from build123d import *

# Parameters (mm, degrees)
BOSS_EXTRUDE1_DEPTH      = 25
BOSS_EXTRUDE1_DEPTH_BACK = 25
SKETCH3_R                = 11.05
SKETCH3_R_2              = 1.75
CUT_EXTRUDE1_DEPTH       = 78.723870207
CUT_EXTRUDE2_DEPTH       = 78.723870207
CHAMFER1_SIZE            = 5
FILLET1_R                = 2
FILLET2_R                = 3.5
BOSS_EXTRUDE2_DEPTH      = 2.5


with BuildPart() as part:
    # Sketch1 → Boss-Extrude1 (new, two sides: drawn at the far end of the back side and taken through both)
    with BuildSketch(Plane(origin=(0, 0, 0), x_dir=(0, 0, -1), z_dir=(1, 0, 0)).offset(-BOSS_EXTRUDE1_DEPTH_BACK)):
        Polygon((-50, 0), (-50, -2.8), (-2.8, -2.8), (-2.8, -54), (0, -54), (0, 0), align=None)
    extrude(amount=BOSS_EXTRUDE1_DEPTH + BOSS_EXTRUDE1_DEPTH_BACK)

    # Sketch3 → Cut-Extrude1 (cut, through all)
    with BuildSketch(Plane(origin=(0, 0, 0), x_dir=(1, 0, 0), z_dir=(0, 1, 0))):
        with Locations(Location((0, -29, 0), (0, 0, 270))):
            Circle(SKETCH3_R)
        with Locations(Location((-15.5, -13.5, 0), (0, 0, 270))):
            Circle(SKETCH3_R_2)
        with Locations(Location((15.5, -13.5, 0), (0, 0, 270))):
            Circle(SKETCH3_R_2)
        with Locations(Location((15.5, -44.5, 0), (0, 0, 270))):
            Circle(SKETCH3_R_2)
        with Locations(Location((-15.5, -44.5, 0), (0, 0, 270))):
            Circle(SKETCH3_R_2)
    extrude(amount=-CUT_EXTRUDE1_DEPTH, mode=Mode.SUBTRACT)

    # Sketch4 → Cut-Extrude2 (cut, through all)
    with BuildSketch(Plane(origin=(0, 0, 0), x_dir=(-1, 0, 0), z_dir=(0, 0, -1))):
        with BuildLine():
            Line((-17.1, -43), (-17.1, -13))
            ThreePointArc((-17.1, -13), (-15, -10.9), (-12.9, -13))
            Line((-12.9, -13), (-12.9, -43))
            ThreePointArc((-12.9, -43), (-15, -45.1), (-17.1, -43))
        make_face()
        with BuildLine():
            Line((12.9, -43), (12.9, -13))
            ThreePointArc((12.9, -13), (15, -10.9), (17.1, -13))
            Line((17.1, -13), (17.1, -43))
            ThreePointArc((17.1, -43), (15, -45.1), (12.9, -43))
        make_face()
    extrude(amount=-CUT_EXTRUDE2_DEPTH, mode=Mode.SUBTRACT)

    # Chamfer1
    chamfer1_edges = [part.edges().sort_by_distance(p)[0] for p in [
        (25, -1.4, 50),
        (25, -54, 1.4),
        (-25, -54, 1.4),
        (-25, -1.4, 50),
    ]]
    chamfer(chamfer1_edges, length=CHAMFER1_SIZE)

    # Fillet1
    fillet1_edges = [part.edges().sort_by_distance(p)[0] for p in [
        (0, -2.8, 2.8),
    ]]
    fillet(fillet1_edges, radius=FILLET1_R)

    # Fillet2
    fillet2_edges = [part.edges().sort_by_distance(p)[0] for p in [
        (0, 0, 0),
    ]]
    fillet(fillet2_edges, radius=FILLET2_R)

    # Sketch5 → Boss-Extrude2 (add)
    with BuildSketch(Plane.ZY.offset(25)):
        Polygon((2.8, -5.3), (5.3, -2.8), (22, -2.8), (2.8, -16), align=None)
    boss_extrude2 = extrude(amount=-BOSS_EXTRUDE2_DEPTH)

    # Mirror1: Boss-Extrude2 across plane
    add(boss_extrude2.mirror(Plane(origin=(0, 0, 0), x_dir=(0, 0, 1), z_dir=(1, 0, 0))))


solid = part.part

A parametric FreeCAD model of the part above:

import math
import FreeCAD as App
import Part
import Sketcher

V = App.Vector
Q = App.Units.Quantity


def edges_at(feature, points):
    """Names of the edges that pass closest to the given points."""
    edges = feature.Shape.Edges
    near = lambda p: min(range(len(edges)), key=lambda i: edges[i].distToShape(Part.Vertex(*p))[0])
    return sorted({f"Edge{near(p) + 1}" for p in points})


def add_polygon(sketch, points):
    """Adds a closed chain of lines whose ends are joined by coincident constraints."""
    first, n = sketch.GeometryCount, len(points)
    for a, b in zip(points, points[1:] + points[:1]):
        sketch.addGeometry(Part.LineSegment(App.Vector(*a, 0), App.Vector(*b, 0)), False)
    for i in range(n):
        sketch.addConstraint(Sketcher.Constraint("Coincident", first + i, 2, first + (i + 1) % n, 1))

doc = App.newDocument("Part")
body = doc.addObject("PartDesign::Body", "Body")

sketch1 = doc.addObject("Sketcher::SketchObject", "Sketch")
body.addObject(sketch1)
sketch1.AttachmentSupport = (doc.YZ_Plane, [""])
sketch1.MapMode = "FlatFace"
add_polygon(sketch1, [(0, 50), (-2.8, 50), (-2.8, 2.8), (-54, 2.8), (-54, 0), (0, 0)])
sketch1.addConstraint(Sketcher.Constraint("Horizontal", 0))
sketch1.addConstraint(Sketcher.Constraint("Vertical", 1))
sketch1.addConstraint(Sketcher.Constraint("Horizontal", 2))
sketch1.addConstraint(Sketcher.Constraint("Vertical", 3))
sketch1.addConstraint(Sketcher.Constraint("Horizontal", 4))
sketch1.addConstraint(Sketcher.Constraint("Vertical", 5))
sketch1.addConstraint(Sketcher.Constraint("Coincident", 4, 2, -1, 1))
sketch1.addConstraint(Sketcher.Constraint("Equal", 0, 3))
sketch1.addConstraint(Sketcher.Constraint("DistanceX", 4, 1, 4, 2, 54.0))
sketch1.addConstraint(Sketcher.Constraint("DistanceY", 5, 1, 5, 2, 50.0))
sketch1.addConstraint(Sketcher.Constraint("DistanceX", 0, 2, 0, 1, 2.8))
pad1 = doc.addObject("PartDesign::Pad", "Pad")
body.addObject(pad1)
pad1.Profile = sketch1
pad1.Type = "TwoLengths"
pad1.Length = 25
pad1.Length2 = 25

sketch2 = doc.addObject("Sketcher::SketchObject", "Sketch001")
body.addObject(sketch2)
sketch2.AttachmentSupport = (doc.XZ_Plane, [""])
sketch2.MapMode = "FlatFace"
sketch2.addGeometry(Part.Circle(V(0, 29, 0), V(0, 0, 1), 11.1), False)
sketch2.addGeometry(Part.Circle(V(-15.5, 13.5, 0), V(0, 0, 1), 1.8), False)
sketch2.addGeometry(Part.Circle(V(15.5, 13.5, 0), V(0, 0, 1), 1.8), False)
sketch2.addGeometry(Part.Circle(V(15.5, 44.5, 0), V(0, 0, 1), 1.8), False)
sketch2.addGeometry(Part.Circle(V(-15.5, 44.5, 0), V(0, 0, 1), 1.8), False)
sketch2.addConstraint(Sketcher.Constraint("Equal", 1, 2))
sketch2.addConstraint(Sketcher.Constraint("Equal", 2, 3))
sketch2.addConstraint(Sketcher.Constraint("Equal", 3, 4))
sketch2.addConstraint(Sketcher.Constraint("Symmetric", 1, 3, 2, 3, -2))
sketch2.addConstraint(Sketcher.Constraint("Symmetric", 3, 3, 4, 3, -2))
sketch2.addConstraint(Sketcher.Constraint("PointOnObject", 0, 3, -2))
sketch2.addConstraint(Sketcher.Constraint("Vertical", 2, 3, 3, 3))
sketch2.addConstraint(Sketcher.Constraint("Diameter", 0, 22.1))
sketch2.addConstraint(Sketcher.Constraint("Diameter", 1, 3.5))
sketch2.addConstraint(Sketcher.Constraint("DistanceY", -1, 1, 0, 3, 29.0))
sketch2.addConstraint(Sketcher.Constraint("DistanceX", 1, 3, 2, 3, 31.0))
sketch2.addConstraint(Sketcher.Constraint("DistanceY", 2, 3, 3, 3, 31.0))
sketch2.addConstraint(Sketcher.Constraint("DistanceY", -1, 1, 1, 3, 13.5))
pocket1 = doc.addObject("PartDesign::Pocket", "Pocket")
body.addObject(pocket1)
pocket1.Profile = sketch2
pocket1.Type = "ThroughAll"
pocket1.Reversed = True

sketch3 = doc.addObject("Sketcher::SketchObject", "Sketch002")
body.addObject(sketch3)
sketch3.AttachmentSupport = (doc.XY_Plane, [""])
sketch3.MapMode = "FlatFace"
sketch3.addGeometry(Part.LineSegment(V(17.1, -13, 0), V(17.1, -43, 0)), False)
sketch3.addGeometry(Part.ArcOfCircle(Part.Circle(V(15, -43, 0), V(0, 0, 1), 2.1), math.radians(180), math.radians(360)), False)
sketch3.addGeometry(Part.LineSegment(V(12.9, -43, 0), V(12.9, -13, 0)), False)
sketch3.addGeometry(Part.ArcOfCircle(Part.Circle(V(15, -13, 0), V(0, 0, 1), 2.1), math.radians(0), math.radians(180)), False)
sketch3.addGeometry(Part.LineSegment(V(-12.9, -13, 0), V(-12.9, -43, 0)), False)
sketch3.addGeometry(Part.ArcOfCircle(Part.Circle(V(-15, -43, 0), V(0, 0, 1), 2.1), math.radians(180), math.radians(360)), False)
sketch3.addGeometry(Part.LineSegment(V(-17.1, -43, 0), V(-17.1, -13, 0)), False)
sketch3.addGeometry(Part.ArcOfCircle(Part.Circle(V(-15, -13, 0), V(0, 0, 1), 2.1), math.radians(0), math.radians(180)), False)
sketch3.addConstraint(Sketcher.Constraint("Tangent", 0, 2, 1, 2))
sketch3.addConstraint(Sketcher.Constraint("Tangent", 1, 1, 2, 1))
sketch3.addConstraint(Sketcher.Constraint("Tangent", 2, 2, 3, 2))
sketch3.addConstraint(Sketcher.Constraint("Tangent", 3, 1, 0, 1))
sketch3.addConstraint(Sketcher.Constraint("Tangent", 4, 2, 5, 2))
sketch3.addConstraint(Sketcher.Constraint("Tangent", 5, 1, 6, 1))
sketch3.addConstraint(Sketcher.Constraint("Tangent", 6, 2, 7, 2))
sketch3.addConstraint(Sketcher.Constraint("Tangent", 7, 1, 4, 1))
sketch3.addConstraint(Sketcher.Constraint("Vertical", 0))
sketch3.addConstraint(Sketcher.Constraint("Vertical", 2))
sketch3.addConstraint(Sketcher.Constraint("Vertical", 4))
sketch3.addConstraint(Sketcher.Constraint("Vertical", 6))
sketch3.addConstraint(Sketcher.Constraint("Equal", 3, 5))
sketch3.addConstraint(Sketcher.Constraint("Symmetric", 1, 3, 5, 3, -2))
sketch3.addConstraint(Sketcher.Constraint("Horizontal", 3, 3, 7, 3))
sketch3.addConstraint(Sketcher.Constraint("Radius", 1, 2.1))
sketch3.addConstraint(Sketcher.Constraint("DistanceY", 0, 2, 0, 1, 30.0))
sketch3.addConstraint(Sketcher.Constraint("DistanceX", -1, 1, 1, 3, 15.0))
sketch3.addConstraint(Sketcher.Constraint("DistanceY", 1, 3, -1, 1, 43.0))
pocket2 = doc.addObject("PartDesign::Pocket", "Pocket001")
body.addObject(pocket2)
pocket2.Profile = sketch3
pocket2.Type = "ThroughAll"
pocket2.Reversed = True
doc.recompute()

chamfer = doc.addObject("PartDesign::Chamfer", "Chamfer")
body.addObject(chamfer)
chamfer.Base = (pocket2, edges_at(pocket2, [
    (25, -1.4, 50),
    (25, -54, 1.4),
    (-25, -54, 1.4),
    (-25, -1.4, 50),
]))
chamfer.Size = 5
doc.recompute()

fillet = doc.addObject("PartDesign::Fillet", "Fillet")
body.addObject(fillet)
fillet.Base = (chamfer, edges_at(chamfer, [(0, -2.8, 2.8)]))
fillet.Radius = 2
doc.recompute()

fillet2 = doc.addObject("PartDesign::Fillet", "Fillet001")
body.addObject(fillet2)
fillet2.Base = (fillet, edges_at(fillet, [(0, 0, 0)]))
fillet2.Radius = 3.5

sketch4 = doc.addObject("Sketcher::SketchObject", "Sketch003")
body.addObject(sketch4)
sketch4.AttachmentSupport = (doc.YZ_Plane, [""])
sketch4.MapMode = "FlatFace"
sketch4.AttachmentOffset = App.Placement(V(0, 0, -25), App.Rotation())
add_polygon(sketch4, [(-2.8, 5.3), (-5.3, 2.8), (-16, 2.8), (-2.8, 22)])
sketch4.addConstraint(Sketcher.Constraint("Horizontal", 1))
sketch4.addConstraint(Sketcher.Constraint("Vertical", 3))
sketch4.addConstraint(Sketcher.Constraint("Angle", 0, Q("-135 deg")))
sketch4.addConstraint(Sketcher.Constraint("DistanceX", 1, 2, 1, 1, 10.7))
sketch4.addConstraint(Sketcher.Constraint("DistanceY", 3, 2, 3, 1, 16.7))
sketch4.addConstraint(Sketcher.Constraint("DistanceX", 1, 2, -1, 1, 16.0))
sketch4.addConstraint(Sketcher.Constraint("DistanceY", -1, 1, 2, 2, 22.0))
sketch4.addConstraint(Sketcher.Constraint("DistanceY", -1, 1, 0, 2, 2.8))
pad2 = doc.addObject("PartDesign::Pad", "Pad001")
body.addObject(pad2)
pad2.Profile = sketch4
pad2.Length = 2.5
doc.recompute()

mirrored = doc.addObject("PartDesign::Mirrored", "Mirrored")
body.addObject(mirrored)
mirrored.Originals = [pad2]
mirrored.MirrorPlane = (doc.YZ_Plane, [""])
body.Tip = mirrored

doc.recompute()
